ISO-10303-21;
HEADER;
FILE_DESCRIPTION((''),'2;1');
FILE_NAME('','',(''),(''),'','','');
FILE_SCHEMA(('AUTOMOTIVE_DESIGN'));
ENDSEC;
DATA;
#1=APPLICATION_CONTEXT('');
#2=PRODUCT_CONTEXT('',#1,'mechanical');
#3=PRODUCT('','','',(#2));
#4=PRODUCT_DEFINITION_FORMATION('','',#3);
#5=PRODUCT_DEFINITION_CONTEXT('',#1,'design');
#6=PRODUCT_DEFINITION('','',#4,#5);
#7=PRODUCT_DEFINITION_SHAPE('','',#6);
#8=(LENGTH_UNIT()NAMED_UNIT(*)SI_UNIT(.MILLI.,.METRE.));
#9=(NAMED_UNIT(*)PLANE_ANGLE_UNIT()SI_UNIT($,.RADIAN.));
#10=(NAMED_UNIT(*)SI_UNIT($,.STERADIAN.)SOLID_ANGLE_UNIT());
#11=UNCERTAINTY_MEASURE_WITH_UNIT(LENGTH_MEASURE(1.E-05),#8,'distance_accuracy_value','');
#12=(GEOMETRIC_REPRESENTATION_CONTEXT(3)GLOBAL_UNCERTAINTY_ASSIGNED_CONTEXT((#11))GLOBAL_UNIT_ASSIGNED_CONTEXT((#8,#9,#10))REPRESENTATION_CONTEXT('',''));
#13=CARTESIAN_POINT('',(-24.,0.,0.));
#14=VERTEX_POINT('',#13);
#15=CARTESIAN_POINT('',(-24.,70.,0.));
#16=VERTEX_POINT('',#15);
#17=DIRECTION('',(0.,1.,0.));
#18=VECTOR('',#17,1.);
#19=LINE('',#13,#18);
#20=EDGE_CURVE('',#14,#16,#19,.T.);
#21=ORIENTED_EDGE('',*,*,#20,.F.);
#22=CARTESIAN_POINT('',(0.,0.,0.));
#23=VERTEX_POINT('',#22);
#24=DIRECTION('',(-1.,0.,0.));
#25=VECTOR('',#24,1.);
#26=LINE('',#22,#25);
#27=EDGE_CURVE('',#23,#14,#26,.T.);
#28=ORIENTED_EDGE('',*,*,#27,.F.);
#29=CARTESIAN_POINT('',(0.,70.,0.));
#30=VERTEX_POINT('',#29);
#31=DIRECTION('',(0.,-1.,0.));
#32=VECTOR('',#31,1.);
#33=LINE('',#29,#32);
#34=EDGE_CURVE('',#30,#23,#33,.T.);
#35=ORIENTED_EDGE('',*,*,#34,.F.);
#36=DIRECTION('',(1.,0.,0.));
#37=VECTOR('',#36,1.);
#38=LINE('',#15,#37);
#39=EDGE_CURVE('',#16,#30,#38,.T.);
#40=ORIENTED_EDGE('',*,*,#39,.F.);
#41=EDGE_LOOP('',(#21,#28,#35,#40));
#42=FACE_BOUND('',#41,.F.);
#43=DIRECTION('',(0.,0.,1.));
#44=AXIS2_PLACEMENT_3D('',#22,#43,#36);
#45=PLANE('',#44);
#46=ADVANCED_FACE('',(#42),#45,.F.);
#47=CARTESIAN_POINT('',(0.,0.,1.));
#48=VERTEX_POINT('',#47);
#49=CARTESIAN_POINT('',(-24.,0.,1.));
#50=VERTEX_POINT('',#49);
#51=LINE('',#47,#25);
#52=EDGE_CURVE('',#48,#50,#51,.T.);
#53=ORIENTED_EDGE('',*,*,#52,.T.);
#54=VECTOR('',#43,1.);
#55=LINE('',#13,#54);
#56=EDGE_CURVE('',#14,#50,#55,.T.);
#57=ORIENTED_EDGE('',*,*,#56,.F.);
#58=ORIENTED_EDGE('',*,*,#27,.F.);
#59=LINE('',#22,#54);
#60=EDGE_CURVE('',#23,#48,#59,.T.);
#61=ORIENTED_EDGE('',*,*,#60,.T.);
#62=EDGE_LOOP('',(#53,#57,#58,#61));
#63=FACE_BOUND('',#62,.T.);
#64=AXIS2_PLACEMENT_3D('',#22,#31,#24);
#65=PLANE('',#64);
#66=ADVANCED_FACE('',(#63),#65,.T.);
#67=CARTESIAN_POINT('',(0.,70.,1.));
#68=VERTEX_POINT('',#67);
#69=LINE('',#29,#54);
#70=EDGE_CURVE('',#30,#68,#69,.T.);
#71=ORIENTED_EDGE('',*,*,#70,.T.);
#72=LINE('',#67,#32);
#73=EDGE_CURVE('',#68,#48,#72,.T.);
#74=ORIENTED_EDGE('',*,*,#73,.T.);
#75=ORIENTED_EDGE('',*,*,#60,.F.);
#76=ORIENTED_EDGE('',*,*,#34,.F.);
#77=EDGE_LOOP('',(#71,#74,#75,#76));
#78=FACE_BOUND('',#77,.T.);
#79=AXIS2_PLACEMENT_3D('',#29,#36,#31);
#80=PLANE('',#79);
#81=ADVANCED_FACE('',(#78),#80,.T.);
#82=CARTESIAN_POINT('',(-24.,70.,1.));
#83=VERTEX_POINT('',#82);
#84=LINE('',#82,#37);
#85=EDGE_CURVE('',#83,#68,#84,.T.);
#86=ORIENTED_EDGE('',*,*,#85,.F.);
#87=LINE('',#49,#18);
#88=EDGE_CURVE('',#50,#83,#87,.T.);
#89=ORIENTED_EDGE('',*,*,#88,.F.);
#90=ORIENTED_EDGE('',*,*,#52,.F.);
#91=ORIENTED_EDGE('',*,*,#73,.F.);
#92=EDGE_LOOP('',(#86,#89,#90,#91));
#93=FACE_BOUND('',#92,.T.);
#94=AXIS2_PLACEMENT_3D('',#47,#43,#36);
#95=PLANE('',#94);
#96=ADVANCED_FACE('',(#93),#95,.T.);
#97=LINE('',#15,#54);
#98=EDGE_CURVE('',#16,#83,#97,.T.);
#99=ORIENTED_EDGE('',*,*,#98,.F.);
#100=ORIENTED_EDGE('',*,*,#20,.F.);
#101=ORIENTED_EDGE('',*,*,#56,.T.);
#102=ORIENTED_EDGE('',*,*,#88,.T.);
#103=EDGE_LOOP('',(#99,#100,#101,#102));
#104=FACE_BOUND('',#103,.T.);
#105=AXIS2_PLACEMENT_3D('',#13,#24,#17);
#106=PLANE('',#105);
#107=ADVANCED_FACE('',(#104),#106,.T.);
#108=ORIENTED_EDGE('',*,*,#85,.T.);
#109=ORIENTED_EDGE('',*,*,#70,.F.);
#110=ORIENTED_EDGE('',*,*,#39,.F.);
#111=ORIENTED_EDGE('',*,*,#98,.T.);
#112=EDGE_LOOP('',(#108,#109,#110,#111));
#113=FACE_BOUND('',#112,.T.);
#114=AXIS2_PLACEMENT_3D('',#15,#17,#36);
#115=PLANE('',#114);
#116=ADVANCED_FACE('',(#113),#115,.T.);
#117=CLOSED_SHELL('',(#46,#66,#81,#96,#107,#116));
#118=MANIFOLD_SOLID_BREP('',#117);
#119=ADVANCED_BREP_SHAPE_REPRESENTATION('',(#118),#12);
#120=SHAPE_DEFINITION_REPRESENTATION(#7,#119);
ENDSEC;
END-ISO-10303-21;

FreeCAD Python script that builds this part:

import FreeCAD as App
import Part
import Sketcher
Q = App.Units.Quantity


def add_polygon(sketch, points):
    """Adds a closed chain of lines whose ends are joined by coincident constraints."""
    first, n = sketch.GeometryCount, len(points)
    for a, b in zip(points, points[1:] + points[:1]):
        sketch.addGeometry(Part.LineSegment(App.Vector(*a, 0), App.Vector(*b, 0)), False)
    for i in range(n):
        sketch.addConstraint(Sketcher.Constraint("Coincident", first + i, 2, first + (i + 1) % n, 1))

doc = App.newDocument("Part")
params = doc.addObject("Spreadsheet::Sheet", "Params")
for row, (alias, value) in enumerate([
    ("sketch1_width", "24 mm"),
    ("sketch1_height", "70 mm"),
    ("pad1_length", "1 mm"),
], start=1):
    params.set(f"A{row}", alias)
    params.set(f"B{row}", "=" + value)
    params.setAlias(f"B{row}", alias)

body = doc.addObject("PartDesign::Body", "Body")

# Sketch on XY plane
sketch1 = body.newObject("Sketcher::SketchObject", "Sketch")
sketch1.AttachmentSupport = (doc.getObject("XY_Plane"), [""])
sketch1.MapMode = "FlatFace"
add_polygon(sketch1, [(-24, 0), (0, 0), (0, 70), (-24, 70)])  # lines 0-3
sketch1.addConstraint([
    Sketcher.Constraint("Horizontal", 0),
    Sketcher.Constraint("Vertical", 1),
    Sketcher.Constraint("Horizontal", 2),
    Sketcher.Constraint("Vertical", 3),
    Sketcher.Constraint("Coincident", 0, 2, -1, 1),
    Sketcher.Constraint("DistanceX", 0, 1, 0, 2, Q("24 mm")),
    Sketcher.Constraint("DistanceY", 1, 1, 1, 2, Q("70 mm")),
])
sketch1.setExpression("Constraints[9]", "Params.sketch1_width")
sketch1.setExpression("Constraints[10]", "Params.sketch1_height")
pad1 = body.newObject("PartDesign::Pad", "Pad")
pad1.Profile = sketch1
pad1.setExpression("Length", "Params.pad1_length")

doc.recompute()
